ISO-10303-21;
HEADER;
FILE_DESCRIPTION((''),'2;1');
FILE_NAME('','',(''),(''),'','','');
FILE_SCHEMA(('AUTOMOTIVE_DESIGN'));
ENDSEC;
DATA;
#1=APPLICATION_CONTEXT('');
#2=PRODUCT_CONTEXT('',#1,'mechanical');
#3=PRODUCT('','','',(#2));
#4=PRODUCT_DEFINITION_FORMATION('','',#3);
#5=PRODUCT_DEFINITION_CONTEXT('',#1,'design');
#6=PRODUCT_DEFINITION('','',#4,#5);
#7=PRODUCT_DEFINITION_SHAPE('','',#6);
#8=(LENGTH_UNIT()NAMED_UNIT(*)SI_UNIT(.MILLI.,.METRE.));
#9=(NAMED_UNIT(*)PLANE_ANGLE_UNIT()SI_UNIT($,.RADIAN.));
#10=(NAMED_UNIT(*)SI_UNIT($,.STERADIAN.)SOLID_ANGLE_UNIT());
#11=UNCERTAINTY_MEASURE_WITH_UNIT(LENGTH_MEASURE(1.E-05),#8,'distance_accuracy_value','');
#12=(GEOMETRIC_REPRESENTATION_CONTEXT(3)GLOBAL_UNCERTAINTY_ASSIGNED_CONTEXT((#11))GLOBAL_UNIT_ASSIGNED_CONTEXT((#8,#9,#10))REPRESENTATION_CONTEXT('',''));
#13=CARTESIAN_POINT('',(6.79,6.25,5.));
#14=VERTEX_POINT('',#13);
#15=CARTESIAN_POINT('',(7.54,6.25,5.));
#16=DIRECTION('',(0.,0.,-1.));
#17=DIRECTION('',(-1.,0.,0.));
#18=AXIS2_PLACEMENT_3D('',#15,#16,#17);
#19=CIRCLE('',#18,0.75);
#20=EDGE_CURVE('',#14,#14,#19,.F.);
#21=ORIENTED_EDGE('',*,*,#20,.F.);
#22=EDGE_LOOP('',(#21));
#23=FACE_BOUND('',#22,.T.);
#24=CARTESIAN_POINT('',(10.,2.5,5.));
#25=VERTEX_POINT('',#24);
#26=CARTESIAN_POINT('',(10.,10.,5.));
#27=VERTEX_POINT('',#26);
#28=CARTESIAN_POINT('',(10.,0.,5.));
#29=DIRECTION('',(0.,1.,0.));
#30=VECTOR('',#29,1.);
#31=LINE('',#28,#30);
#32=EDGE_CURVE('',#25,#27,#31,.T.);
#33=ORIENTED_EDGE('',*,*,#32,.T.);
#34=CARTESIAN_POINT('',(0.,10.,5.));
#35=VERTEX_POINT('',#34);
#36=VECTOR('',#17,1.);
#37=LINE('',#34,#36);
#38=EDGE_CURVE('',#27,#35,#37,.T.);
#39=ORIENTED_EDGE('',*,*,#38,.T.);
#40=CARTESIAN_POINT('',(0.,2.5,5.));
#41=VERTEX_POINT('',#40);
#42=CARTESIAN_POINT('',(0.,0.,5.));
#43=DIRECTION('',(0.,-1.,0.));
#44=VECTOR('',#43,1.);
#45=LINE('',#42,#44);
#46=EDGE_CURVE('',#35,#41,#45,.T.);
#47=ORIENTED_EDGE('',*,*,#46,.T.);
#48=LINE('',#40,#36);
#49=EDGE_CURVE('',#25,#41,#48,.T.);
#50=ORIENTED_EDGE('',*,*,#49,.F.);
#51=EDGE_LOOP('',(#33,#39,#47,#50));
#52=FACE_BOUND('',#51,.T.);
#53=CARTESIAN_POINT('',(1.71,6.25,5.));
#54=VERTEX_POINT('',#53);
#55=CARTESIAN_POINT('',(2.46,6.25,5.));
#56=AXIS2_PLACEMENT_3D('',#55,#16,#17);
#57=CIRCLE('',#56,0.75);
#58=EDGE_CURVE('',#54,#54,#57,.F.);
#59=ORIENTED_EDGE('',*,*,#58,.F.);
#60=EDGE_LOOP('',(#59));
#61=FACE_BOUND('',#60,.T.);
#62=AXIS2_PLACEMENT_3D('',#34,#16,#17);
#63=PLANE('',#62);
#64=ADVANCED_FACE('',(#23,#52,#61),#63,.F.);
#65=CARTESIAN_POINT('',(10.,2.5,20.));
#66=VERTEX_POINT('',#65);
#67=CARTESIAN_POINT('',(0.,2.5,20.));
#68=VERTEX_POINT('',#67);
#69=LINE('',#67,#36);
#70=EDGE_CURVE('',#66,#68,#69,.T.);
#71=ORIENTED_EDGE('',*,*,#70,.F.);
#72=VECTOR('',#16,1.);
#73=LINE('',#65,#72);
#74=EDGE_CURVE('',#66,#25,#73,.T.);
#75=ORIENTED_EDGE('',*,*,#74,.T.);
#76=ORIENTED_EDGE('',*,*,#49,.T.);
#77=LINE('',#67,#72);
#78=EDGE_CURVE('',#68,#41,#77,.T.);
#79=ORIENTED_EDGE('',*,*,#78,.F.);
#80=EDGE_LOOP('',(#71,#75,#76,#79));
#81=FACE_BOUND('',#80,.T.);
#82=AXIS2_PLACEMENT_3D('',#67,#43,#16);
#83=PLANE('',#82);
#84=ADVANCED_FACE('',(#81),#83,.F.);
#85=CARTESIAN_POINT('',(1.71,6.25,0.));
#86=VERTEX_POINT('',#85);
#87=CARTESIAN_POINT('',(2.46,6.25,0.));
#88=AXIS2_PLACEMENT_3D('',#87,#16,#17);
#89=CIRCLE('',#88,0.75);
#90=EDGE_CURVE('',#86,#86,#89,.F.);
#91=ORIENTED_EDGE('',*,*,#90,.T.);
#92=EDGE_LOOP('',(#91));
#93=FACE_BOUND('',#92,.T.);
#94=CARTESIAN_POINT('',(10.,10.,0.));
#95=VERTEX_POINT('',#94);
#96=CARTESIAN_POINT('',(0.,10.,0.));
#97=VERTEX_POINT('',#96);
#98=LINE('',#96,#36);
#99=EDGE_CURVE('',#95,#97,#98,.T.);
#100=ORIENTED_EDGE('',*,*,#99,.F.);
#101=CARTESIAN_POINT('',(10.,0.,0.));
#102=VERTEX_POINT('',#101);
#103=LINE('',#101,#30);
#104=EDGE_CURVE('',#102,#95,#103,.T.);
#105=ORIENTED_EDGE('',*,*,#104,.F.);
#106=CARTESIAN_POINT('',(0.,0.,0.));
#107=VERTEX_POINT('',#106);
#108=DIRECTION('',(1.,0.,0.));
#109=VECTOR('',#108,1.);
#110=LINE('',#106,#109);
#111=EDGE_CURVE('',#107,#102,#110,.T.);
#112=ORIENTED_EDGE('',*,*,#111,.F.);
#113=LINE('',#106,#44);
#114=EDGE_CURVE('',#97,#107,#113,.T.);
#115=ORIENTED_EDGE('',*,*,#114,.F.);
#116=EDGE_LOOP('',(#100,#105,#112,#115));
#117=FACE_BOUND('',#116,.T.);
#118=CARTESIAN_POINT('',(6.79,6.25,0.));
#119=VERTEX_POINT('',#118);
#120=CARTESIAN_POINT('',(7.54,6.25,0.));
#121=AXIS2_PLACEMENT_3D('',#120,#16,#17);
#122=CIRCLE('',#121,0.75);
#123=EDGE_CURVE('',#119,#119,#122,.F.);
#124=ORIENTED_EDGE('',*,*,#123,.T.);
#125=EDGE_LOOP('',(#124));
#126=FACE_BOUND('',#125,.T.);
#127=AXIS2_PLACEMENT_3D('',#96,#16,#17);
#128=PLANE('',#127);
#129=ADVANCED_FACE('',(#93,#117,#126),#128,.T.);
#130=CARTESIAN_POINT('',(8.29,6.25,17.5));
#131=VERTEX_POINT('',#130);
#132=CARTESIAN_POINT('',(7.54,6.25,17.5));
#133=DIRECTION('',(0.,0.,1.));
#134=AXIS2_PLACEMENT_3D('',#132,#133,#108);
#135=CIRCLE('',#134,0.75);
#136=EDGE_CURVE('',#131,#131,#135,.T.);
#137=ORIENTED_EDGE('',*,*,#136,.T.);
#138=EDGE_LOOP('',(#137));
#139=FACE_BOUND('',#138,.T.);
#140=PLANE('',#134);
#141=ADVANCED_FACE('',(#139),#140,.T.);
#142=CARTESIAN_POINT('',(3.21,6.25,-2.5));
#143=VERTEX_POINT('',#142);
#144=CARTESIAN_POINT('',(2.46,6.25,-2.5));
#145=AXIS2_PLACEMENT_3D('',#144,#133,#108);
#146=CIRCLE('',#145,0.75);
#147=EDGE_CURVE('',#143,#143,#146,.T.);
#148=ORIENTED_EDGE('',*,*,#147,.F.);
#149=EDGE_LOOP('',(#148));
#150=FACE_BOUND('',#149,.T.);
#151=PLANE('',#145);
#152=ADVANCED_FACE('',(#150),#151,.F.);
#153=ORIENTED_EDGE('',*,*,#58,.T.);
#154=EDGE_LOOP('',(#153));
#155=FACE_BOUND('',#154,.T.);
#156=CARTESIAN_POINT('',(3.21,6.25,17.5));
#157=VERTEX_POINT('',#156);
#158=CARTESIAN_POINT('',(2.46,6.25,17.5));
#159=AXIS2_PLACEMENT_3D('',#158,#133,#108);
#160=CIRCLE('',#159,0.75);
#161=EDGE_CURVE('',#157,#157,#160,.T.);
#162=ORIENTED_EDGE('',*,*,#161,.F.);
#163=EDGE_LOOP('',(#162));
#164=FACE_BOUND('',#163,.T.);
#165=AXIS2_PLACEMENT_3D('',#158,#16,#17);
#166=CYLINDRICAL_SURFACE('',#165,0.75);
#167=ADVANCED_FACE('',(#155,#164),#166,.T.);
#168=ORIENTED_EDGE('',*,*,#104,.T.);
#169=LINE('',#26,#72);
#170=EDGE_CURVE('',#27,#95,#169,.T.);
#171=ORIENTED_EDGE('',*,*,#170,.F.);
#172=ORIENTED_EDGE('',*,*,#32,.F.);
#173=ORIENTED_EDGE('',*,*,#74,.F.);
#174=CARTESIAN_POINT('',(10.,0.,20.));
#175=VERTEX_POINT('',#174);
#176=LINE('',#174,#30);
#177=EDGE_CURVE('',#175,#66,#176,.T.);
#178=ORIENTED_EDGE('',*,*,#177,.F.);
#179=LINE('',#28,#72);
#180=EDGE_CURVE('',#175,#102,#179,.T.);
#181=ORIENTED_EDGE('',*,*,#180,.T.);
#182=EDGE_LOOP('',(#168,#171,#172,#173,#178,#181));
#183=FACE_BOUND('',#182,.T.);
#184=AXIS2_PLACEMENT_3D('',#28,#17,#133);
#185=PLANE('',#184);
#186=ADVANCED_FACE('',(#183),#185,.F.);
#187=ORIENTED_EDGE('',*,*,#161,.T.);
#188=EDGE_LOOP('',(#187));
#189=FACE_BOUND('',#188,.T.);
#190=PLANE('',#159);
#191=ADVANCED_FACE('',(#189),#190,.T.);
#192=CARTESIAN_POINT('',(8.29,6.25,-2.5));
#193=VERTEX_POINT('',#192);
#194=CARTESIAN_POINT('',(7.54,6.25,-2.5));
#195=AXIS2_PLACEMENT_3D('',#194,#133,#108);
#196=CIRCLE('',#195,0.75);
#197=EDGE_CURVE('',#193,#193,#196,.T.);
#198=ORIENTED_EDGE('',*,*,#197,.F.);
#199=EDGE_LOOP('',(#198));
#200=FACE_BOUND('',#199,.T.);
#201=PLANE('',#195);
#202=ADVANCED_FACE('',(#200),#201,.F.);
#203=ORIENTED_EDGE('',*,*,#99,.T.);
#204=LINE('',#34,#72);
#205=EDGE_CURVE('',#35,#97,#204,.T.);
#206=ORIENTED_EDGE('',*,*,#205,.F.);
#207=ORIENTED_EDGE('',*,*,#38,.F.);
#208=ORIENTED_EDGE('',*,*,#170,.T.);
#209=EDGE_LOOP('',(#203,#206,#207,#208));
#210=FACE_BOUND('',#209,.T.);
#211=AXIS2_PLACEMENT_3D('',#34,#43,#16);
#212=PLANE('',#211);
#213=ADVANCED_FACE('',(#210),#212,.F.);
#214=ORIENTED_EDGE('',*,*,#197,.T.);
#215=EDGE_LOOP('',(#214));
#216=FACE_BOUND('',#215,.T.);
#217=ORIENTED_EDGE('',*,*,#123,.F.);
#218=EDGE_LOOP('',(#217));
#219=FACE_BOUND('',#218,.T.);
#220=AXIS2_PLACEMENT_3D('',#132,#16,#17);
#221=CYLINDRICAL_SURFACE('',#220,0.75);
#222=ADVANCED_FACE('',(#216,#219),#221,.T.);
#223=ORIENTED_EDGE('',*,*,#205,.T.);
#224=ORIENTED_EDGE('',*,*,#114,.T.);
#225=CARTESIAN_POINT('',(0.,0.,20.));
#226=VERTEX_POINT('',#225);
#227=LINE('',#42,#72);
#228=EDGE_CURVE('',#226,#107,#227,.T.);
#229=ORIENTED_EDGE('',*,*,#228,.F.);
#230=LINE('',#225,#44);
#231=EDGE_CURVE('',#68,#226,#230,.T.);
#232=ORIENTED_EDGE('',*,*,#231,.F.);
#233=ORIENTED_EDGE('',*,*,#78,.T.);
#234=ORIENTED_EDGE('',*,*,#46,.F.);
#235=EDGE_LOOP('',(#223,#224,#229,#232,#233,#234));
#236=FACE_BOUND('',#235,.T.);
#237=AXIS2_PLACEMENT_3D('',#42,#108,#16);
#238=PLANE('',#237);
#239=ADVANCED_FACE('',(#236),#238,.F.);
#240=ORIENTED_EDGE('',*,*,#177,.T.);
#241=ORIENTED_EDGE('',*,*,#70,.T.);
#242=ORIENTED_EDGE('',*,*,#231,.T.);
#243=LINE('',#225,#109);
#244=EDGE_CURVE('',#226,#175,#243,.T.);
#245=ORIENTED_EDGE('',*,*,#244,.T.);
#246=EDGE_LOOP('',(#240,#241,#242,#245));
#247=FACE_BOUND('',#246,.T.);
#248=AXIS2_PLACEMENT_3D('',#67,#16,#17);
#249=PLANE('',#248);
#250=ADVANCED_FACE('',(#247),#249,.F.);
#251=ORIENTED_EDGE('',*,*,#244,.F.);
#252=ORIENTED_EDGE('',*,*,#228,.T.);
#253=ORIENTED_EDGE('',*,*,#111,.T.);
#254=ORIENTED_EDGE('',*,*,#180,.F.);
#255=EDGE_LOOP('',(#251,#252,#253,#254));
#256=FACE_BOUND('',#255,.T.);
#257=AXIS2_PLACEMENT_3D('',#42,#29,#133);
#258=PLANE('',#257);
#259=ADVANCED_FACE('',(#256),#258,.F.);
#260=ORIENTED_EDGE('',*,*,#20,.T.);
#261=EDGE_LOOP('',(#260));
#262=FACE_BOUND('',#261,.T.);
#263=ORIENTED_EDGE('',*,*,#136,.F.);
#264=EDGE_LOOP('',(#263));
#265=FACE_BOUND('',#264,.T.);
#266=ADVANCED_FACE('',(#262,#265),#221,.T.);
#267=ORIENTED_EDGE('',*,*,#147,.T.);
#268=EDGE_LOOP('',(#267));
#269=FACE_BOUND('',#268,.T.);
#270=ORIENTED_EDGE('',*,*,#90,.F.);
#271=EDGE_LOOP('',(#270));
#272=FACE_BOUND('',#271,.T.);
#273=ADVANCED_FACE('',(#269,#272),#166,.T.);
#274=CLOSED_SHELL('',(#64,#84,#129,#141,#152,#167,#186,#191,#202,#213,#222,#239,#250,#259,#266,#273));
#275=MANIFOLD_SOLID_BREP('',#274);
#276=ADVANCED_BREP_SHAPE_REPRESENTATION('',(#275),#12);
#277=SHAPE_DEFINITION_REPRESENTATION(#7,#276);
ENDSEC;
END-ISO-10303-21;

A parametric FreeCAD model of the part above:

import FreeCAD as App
import Part
import Sketcher
from FreeCAD import Vector

doc = App.newDocument("Part")
body = doc.addObject("PartDesign::Body", "Body")

# Sketch on XY plane
sketch1 = body.newObject("Sketcher::SketchObject", "Sketch")
sketch1.AttachmentSupport = (doc.getObject("XY_Plane"), [""])
sketch1.MapMode = "FlatFace"
sketch1.addGeometry(Part.LineSegment(Vector(0, 10, 0), Vector(0, 0, 0)), False)
sketch1.addGeometry(Part.LineSegment(Vector(0, 0, 0), Vector(10, 0, 0)), False)
sketch1.addGeometry(Part.LineSegment(Vector(10, 0, 0), Vector(10, 10, 0)), False)
sketch1.addGeometry(Part.LineSegment(Vector(10, 10, 0), Vector(0, 10, 0)), False)
sketch1.addConstraint(Sketcher.Constraint("Coincident", 0, 2, 1, 1))
sketch1.addConstraint(Sketcher.Constraint("Coincident", 1, 2, 2, 1))
sketch1.addConstraint(Sketcher.Constraint("Coincident", 2, 2, 3, 1))
sketch1.addConstraint(Sketcher.Constraint("Coincident", 3, 2, 0, 1))
sketch1.addConstraint(Sketcher.Constraint("Vertical", 0))
sketch1.addConstraint(Sketcher.Constraint("Horizontal", 1))
sketch1.addConstraint(Sketcher.Constraint("Vertical", 2))
sketch1.addConstraint(Sketcher.Constraint("Horizontal", 3))
sketch1.addConstraint(Sketcher.Constraint("Coincident", 0, 2, -1, 1))
sketch1.addConstraint(Sketcher.Constraint("Equal", 3, 0))
sketch1.addConstraint(Sketcher.Constraint("DistanceX", 1, 1, 1, 2, 10.0))
pad1 = body.newObject("PartDesign::Pad", "Pad")
pad1.Profile = sketch1
pad1.Length = 5

# Sketch on XY plane
sketch2 = body.newObject("Sketcher::SketchObject", "Sketch001")
sketch2.AttachmentSupport = (doc.getObject("XY_Plane"), [""])
sketch2.MapMode = "FlatFace"
sketch2.AttachmentOffset = App.Placement(Vector(0, 0, 5), App.Rotation())
sketch2.addGeometry(Part.LineSegment(Vector(0, 2.5, 0), Vector(0, 0, 0)), False)
sketch2.addGeometry(Part.LineSegment(Vector(0, 0, 0), Vector(10, 0, 0)), False)
sketch2.addGeometry(Part.LineSegment(Vector(10, 0, 0), Vector(10, 2.5, 0)), False)
sketch2.addGeometry(Part.LineSegment(Vector(10, 2.5, 0), Vector(0, 2.5, 0)), False)
sketch2.addConstraint(Sketcher.Constraint("Coincident", 0, 2, 1, 1))
sketch2.addConstraint(Sketcher.Constraint("Coincident", 1, 2, 2, 1))
sketch2.addConstraint(Sketcher.Constraint("Coincident", 2, 2, 3, 1))
sketch2.addConstraint(Sketcher.Constraint("Coincident", 3, 2, 0, 1))
sketch2.addConstraint(Sketcher.Constraint("Vertical", 0))
sketch2.addConstraint(Sketcher.Constraint("Horizontal", 1))
sketch2.addConstraint(Sketcher.Constraint("Vertical", 2))
sketch2.addConstraint(Sketcher.Constraint("Horizontal", 3))
sketch2.addConstraint(Sketcher.Constraint("Coincident", 0, 2, -1, 1))
sketch2.addConstraint(Sketcher.Constraint("DistanceX", 1, 1, 1, 2, 10.0))
sketch2.addConstraint(Sketcher.Constraint("DistanceY", 0, 2, 0, 1, 2.5))
pad2 = body.newObject("PartDesign::Pad", "Pad001")
pad2.Profile = sketch2
pad2.Length = 15

# Sketch on XY plane
sketch3 = body.newObject("Sketcher::SketchObject", "Sketch002")
sketch3.AttachmentSupport = (doc.getObject("XY_Plane"), [""])
sketch3.MapMode = "FlatFace"
sketch3.AttachmentOffset = App.Placement(Vector(0, 0, 5), App.Rotation())
sketch3.addGeometry(Part.Circle(Vector(7.5, 6.2, 0), Vector(0, 0, 1), 0.8), False)
sketch3.addGeometry(Part.Circle(Vector(2.5, 6.2, 0), Vector(0, 0, 1), 0.8), False)
sketch3.addConstraint(Sketcher.Constraint("Equal", 0, 1))
sketch3.addConstraint(Sketcher.Constraint("Horizontal", 0, 3, 1, 3))
sketch3.addConstraint(Sketcher.Constraint("Diameter", 0, 1.5))
sketch3.addConstraint(Sketcher.Constraint("DistanceX", -1, 1, 0, 3, 7.54))
sketch3.addConstraint(Sketcher.Constraint("DistanceY", -1, 1, 0, 3, 6.25))
sketch3.addConstraint(Sketcher.Constraint("DistanceX", -1, 1, 1, 3, 2.46))
pad3 = body.newObject("PartDesign::Pad", "Pad002")
pad3.Profile = sketch3
pad3.Type = "TwoLengths"
pad3.Length = 12.5
pad3.Length2 = 7.5

doc.recompute()
